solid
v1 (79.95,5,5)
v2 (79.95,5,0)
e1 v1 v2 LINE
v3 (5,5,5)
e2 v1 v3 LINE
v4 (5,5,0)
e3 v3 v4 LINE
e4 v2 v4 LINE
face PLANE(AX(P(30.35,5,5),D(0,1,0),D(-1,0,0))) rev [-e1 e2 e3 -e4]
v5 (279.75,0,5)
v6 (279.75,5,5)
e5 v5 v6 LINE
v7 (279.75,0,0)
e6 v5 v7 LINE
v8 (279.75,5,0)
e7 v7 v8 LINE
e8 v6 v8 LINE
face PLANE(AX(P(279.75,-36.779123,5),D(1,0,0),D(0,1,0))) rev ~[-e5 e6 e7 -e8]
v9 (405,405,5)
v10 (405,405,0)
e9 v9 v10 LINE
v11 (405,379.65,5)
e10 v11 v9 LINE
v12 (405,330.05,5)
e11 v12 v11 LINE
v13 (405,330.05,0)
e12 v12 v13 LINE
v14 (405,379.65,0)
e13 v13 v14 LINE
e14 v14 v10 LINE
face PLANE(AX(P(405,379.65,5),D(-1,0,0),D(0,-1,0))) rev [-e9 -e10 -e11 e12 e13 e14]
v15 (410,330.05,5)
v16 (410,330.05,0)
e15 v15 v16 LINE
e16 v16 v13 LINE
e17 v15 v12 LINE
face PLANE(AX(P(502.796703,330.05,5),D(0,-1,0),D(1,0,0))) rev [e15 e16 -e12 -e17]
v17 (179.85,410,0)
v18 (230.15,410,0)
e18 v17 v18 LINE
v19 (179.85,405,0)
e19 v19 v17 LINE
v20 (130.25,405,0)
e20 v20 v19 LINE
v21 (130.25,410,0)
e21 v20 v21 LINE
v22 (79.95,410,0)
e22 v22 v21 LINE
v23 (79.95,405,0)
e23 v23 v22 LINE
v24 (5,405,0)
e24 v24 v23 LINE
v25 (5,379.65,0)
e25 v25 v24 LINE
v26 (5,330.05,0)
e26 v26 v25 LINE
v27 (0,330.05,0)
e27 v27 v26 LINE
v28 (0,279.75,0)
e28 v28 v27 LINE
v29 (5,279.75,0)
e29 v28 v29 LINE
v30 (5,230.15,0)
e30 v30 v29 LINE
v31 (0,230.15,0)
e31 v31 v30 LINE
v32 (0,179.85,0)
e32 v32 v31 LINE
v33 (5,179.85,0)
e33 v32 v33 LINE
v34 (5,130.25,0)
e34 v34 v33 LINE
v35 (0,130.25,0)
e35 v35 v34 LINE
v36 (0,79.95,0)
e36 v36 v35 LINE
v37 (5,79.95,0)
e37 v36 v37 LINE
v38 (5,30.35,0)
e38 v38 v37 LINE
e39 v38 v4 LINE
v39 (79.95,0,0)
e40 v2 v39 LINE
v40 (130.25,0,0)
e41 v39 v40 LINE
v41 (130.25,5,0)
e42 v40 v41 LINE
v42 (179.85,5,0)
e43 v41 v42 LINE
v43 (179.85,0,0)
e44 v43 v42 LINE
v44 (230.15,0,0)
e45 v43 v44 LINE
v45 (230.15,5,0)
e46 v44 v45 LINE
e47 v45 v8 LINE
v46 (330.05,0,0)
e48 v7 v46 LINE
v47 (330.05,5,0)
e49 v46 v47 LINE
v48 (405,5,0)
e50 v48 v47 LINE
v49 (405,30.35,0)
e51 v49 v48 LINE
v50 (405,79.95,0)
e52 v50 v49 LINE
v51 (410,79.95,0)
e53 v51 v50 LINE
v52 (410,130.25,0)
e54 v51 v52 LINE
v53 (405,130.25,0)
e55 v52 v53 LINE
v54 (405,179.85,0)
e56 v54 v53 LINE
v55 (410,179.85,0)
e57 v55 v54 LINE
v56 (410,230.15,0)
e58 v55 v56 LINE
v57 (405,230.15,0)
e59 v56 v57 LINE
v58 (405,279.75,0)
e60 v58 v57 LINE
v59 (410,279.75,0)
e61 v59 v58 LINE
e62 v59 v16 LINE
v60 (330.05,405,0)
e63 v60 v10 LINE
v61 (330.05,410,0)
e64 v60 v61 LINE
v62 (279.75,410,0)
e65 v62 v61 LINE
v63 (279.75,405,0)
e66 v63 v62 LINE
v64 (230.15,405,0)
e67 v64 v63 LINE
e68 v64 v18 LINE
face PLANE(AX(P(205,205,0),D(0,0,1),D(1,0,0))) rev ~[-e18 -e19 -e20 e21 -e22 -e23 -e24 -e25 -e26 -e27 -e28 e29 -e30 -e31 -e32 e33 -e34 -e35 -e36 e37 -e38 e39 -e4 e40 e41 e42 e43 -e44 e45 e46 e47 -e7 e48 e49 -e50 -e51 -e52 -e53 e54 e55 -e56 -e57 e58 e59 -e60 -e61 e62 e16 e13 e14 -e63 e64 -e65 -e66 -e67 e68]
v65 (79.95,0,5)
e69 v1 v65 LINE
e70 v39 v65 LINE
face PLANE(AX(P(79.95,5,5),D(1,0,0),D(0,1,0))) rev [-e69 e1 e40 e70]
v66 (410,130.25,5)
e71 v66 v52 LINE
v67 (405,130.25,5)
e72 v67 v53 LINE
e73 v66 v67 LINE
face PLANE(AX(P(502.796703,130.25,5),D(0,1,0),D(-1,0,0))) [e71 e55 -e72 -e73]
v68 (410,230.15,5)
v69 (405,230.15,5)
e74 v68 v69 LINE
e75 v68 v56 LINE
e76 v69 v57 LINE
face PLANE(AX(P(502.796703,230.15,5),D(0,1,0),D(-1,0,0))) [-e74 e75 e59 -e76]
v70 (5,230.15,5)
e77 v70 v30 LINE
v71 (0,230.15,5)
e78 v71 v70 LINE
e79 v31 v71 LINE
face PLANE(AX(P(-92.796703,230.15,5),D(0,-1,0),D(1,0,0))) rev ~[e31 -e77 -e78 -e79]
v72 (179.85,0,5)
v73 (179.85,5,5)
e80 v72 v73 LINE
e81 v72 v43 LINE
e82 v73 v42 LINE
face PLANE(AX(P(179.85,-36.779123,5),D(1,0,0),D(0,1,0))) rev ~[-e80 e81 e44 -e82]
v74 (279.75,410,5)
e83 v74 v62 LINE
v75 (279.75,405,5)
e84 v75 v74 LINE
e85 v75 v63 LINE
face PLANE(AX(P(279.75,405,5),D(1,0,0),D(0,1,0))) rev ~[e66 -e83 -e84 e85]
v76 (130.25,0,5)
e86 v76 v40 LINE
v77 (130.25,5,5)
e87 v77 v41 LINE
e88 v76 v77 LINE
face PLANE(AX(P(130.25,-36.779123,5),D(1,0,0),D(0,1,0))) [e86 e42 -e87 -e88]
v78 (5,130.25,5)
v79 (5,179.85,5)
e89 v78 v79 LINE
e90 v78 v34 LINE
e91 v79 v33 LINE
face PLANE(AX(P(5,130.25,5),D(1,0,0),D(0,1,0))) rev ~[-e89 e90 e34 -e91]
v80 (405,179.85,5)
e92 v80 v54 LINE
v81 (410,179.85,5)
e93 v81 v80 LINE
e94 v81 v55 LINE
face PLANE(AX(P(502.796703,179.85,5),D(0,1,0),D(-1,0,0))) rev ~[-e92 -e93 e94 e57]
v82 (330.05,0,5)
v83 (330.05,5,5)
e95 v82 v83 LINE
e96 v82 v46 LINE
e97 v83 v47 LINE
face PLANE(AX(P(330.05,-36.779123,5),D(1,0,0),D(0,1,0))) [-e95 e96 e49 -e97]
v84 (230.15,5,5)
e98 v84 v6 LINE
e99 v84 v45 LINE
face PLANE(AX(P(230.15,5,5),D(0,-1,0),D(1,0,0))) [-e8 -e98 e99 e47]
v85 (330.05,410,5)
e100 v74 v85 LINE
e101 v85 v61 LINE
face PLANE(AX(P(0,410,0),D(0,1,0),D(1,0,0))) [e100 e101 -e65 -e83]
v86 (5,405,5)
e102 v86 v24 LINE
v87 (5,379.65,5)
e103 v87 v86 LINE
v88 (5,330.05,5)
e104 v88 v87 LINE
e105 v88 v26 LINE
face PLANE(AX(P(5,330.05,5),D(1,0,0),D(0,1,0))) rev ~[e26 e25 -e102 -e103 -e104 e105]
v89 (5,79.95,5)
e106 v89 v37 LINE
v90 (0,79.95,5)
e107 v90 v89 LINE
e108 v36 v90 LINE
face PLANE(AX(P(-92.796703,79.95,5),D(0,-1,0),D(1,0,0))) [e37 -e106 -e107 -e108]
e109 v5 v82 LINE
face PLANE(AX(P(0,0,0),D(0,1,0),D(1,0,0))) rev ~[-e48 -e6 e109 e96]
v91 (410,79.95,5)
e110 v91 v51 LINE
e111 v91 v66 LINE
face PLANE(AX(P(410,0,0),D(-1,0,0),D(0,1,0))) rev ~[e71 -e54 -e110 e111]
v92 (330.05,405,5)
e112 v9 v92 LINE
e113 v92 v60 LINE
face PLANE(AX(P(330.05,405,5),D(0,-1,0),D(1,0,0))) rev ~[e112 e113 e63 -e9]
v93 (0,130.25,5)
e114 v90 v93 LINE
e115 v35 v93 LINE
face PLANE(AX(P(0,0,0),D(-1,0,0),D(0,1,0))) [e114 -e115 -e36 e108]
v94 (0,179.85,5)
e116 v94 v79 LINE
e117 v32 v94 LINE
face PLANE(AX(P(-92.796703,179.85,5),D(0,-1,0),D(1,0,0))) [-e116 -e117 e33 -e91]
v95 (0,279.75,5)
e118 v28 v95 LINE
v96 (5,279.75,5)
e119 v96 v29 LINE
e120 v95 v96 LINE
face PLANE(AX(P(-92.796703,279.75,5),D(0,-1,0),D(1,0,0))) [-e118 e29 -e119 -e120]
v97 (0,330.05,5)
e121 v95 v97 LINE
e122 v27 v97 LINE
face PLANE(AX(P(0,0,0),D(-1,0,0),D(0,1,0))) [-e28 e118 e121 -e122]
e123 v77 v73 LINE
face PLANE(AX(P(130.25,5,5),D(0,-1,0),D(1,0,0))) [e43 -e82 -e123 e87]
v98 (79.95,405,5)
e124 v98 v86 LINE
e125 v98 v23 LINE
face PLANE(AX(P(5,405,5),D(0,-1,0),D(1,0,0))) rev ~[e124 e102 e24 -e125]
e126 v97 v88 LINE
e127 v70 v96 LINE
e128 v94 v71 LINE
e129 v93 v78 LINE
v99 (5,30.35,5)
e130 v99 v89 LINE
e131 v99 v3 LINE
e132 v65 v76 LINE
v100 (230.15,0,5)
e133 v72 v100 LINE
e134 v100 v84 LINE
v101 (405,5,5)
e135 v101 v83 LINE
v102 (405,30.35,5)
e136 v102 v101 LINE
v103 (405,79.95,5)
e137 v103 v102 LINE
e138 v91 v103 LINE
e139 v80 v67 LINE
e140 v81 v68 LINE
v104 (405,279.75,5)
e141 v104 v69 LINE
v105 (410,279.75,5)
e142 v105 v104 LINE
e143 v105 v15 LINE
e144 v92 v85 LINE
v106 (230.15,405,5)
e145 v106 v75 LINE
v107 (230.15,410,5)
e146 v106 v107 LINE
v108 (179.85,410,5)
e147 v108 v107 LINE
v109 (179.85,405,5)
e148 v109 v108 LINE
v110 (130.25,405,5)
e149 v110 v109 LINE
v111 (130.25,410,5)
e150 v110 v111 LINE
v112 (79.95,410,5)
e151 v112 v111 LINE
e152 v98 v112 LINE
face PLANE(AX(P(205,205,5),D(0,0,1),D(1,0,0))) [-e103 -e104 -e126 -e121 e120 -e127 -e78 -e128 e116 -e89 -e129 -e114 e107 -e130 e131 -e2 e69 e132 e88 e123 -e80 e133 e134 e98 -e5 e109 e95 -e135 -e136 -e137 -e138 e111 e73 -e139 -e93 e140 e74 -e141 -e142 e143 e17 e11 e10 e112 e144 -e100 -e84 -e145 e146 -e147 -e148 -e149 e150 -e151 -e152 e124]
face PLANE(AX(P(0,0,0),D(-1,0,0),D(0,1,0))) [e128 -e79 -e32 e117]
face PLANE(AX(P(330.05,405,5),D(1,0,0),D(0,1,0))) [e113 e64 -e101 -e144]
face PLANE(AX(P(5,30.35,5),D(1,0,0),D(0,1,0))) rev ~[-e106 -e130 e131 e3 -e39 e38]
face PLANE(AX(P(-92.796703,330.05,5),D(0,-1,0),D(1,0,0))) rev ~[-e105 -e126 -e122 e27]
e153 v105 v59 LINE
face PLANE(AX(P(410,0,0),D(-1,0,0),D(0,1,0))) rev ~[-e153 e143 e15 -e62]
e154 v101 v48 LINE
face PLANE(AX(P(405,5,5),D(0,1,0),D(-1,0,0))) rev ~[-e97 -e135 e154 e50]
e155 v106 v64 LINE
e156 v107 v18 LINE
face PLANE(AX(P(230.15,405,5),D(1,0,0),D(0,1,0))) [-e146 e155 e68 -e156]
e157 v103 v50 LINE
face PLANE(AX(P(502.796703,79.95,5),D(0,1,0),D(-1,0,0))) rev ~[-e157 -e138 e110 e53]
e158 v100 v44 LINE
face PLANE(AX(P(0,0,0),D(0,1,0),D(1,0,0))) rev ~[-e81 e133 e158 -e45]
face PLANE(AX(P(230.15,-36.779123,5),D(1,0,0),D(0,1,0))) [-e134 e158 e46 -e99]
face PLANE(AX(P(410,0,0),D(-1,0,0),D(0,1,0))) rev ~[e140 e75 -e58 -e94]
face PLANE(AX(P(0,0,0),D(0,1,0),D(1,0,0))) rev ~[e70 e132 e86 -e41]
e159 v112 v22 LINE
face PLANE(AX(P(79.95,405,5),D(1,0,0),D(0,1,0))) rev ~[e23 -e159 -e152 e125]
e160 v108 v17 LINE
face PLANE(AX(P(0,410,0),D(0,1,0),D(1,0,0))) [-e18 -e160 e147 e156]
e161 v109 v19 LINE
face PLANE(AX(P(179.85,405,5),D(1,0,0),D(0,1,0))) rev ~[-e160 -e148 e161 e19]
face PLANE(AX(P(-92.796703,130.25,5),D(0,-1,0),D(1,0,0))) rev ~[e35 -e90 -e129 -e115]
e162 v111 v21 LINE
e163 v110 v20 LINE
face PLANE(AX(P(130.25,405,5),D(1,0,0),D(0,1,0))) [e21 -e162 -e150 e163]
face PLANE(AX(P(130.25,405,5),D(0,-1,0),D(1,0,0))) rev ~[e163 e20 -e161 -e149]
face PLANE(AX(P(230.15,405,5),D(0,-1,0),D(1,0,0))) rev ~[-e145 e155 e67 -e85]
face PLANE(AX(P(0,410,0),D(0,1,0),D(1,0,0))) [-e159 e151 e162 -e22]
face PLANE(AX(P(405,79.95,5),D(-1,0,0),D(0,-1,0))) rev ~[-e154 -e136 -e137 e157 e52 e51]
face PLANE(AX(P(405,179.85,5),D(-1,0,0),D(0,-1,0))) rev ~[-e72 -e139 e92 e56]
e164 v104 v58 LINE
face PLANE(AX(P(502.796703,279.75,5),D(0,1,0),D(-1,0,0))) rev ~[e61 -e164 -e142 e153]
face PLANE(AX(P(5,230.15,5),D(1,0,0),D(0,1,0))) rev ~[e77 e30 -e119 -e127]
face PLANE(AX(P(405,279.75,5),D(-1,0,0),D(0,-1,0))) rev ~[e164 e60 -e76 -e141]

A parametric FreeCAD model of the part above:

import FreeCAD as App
import Part
import Sketcher
from FreeCAD import Vector


def add_polygon(sketch, points):
    """Adds a closed chain of lines whose ends are joined by coincident constraints."""
    first, n = sketch.GeometryCount, len(points)
    for a, b in zip(points, points[1:] + points[:1]):
        sketch.addGeometry(Part.LineSegment(App.Vector(*a, 0), App.Vector(*b, 0)), False)
    for i in range(n):
        sketch.addConstraint(Sketcher.Constraint("Coincident", first + i, 2, first + (i + 1) % n, 1))

doc = App.newDocument("Part")
params = doc.addObject("Spreadsheet::Sheet", "Params")
for row, (alias, value) in enumerate([
    ("sketch1_width", "410 mm"),
    ("pad1_length", "5 mm"),
    ("sketch2_height", "49.6 mm"),
    ("pocket1_length", "5 mm"),
    ("linearpattern_pitch", "99.9 mm"),
    ("sketch3_height", "49.6 mm"),
    ("pocket2_length", "5 mm"),
    ("sketch4_height", "49.6 mm"),
    ("pocket3_length", "5 mm"),
    ("sketch5_height", "49.6 mm"),
    ("pocket4_length", "5 mm"),
    ("sketch6_width", "49.6 mm"),
    ("pocket5_length", "5 mm"),
    ("linearpattern2_pitch", "99.9 mm"),
    ("sketch7_width", "49.6 mm"),
    ("pocket6_length", "5 mm"),
    ("sketch8_width", "49.6 mm"),
    ("pocket7_length", "5 mm"),
    ("sketch9_width", "49.6 mm"),
    ("pocket8_length", "5 mm"),
    ("sketch10_width", "25.35 mm"),
    ("pocket9_length", "5 mm"),
    ("sketch11_width", "25.35 mm"),
    ("pocket10_length", "5 mm"),
], start=1):
    params.set(f"A{row}", alias)
    params.set(f"B{row}", "=" + value)
    params.setAlias(f"B{row}", alias)

body = doc.addObject("PartDesign::Body", "Body")

sketch1 = body.newObject("Sketcher::SketchObject", "Sketch")
sketch1.AttachmentSupport = (doc.getObject("XY_Plane"), [""])
sketch1.MapMode = "FlatFace"
add_polygon(sketch1, [(0, 410), (0, 0), (410, 0), (410, 410)])
sketch1.addConstraint([
    Sketcher.Constraint("Vertical", 0),
    Sketcher.Constraint("Horizontal", 1),
    Sketcher.Constraint("Vertical", 2),
    Sketcher.Constraint("Horizontal", 3),
    Sketcher.Constraint("Coincident", 0, 2, -1, 1),
    Sketcher.Constraint("Equal", 3, 0),
    Sketcher.Constraint("DistanceX", 1, 1, 1, 2, 410.0),
])
sketch1.setExpression("Constraints[10]", "Params.sketch1_width")
pad1 = body.newObject("PartDesign::Pad", "Pad")
pad1.Profile = sketch1
pad1.setExpression("Length", "Params.pad1_length")

sketch2 = body.newObject("Sketcher::SketchObject", "Sketch001")
sketch2.AttachmentSupport = (doc.getObject("XY_Plane"), [""])
sketch2.MapMode = "FlatFace"
sketch2.AttachmentOffset = App.Placement(Vector(0, 0, 5), App.Rotation())
add_polygon(sketch2, [(-93, 380), (-93, 330), (5, 330), (5, 380)])
sketch2.addConstraint([
    Sketcher.Constraint("Vertical", 0),
    Sketcher.Constraint("Horizontal", 1),
    Sketcher.Constraint("Vertical", 2),
    Sketcher.Constraint("Horizontal", 3),
    Sketcher.Constraint("DistanceY", 0, 2, 0, 1, 49.6),
    Sketcher.Constraint("DistanceX", -1, 1, 1, 2, 5.0),
    Sketcher.Constraint("DistanceY", -1, 1, 0, 2, 330.05),
    Sketcher.Constraint("DistanceX", 1, 1, 1, 2, 97.796703),
])
sketch2.setExpression("Constraints[8]", "Params.sketch2_height")
pocket1 = body.newObject("PartDesign::Pocket", "Pocket")
pocket1.Profile = sketch2
pocket1.setExpression("Length", "Params.pocket1_length")
doc.recompute()

linearpattern = body.newObject("PartDesign::LinearPattern", "LinearPattern")
linearpattern.Originals = [pocket1]
linearpattern.Direction = (doc.getObject("Y_Axis"), [""])
linearpattern.Mode = "offset"
linearpattern.setExpression("Offset", "Params.linearpattern_pitch")
linearpattern.Occurrences = 4
linearpattern.Reversed = True
body.Tip = linearpattern
doc.recompute()

datumplane = body.newObject("PartDesign::Plane", "DatumPlane")
datumplane.AttachmentSupport = (doc.getObject("YZ_Plane"), [""])
datumplane.MapMode = "FlatFace"
datumplane.AttachmentOffset = App.Placement(Vector(0, 0, 205), App.Rotation())
mirrored = body.newObject("PartDesign::Mirrored", "Mirrored")
mirrored.Originals = [pocket1]
mirrored.MirrorPlane = (datumplane, [""])
body.Tip = mirrored

sketch3 = body.newObject("Sketcher::SketchObject", "Sketch002")
sketch3.AttachmentSupport = (doc.getObject("XY_Plane"), [""])
sketch3.MapMode = "FlatFace"
sketch3.AttachmentOffset = App.Placement(Vector(0, 0, 5), App.Rotation())
add_polygon(sketch3, [(503, 230), (503, 280), (405, 280), (405, 230)])
sketch3.addConstraint([
    Sketcher.Constraint("Vertical", 0),
    Sketcher.Constraint("Horizontal", 1),
    Sketcher.Constraint("Vertical", 2),
    Sketcher.Constraint("Horizontal", 3),
    Sketcher.Constraint("DistanceY", 0, 1, 0, 2, 49.6),
    Sketcher.Constraint("DistanceX", -1, 1, 1, 2, 405.0),
    Sketcher.Constraint("DistanceY", -1, 1, 0, 2, 279.75),
    Sketcher.Constraint("DistanceX", 1, 2, 1, 1, 97.796703),
])
sketch3.setExpression("Constraints[8]", "Params.sketch3_height")
pocket2 = body.newObject("PartDesign::Pocket", "Pocket001")
pocket2.Profile = sketch3
pocket2.setExpression("Length", "Params.pocket2_length")

sketch4 = body.newObject("Sketcher::SketchObject", "Sketch003")
sketch4.AttachmentSupport = (doc.getObject("XY_Plane"), [""])
sketch4.MapMode = "FlatFace"
sketch4.AttachmentOffset = App.Placement(Vector(0, 0, 5), App.Rotation())
add_polygon(sketch4, [(503, 130), (503, 180), (405, 180), (405, 130)])
sketch4.addConstraint([
    Sketcher.Constraint("Vertical", 0),
    Sketcher.Constraint("Horizontal", 1),
    Sketcher.Constraint("Vertical", 2),
    Sketcher.Constraint("Horizontal", 3),
    Sketcher.Constraint("DistanceY", 0, 1, 0, 2, 49.6),
    Sketcher.Constraint("DistanceX", -1, 1, 1, 2, 405.0),
    Sketcher.Constraint("DistanceY", -1, 1, 0, 2, 179.85),
    Sketcher.Constraint("DistanceX", 1, 2, 1, 1, 97.796703),
])
sketch4.setExpression("Constraints[8]", "Params.sketch4_height")
pocket3 = body.newObject("PartDesign::Pocket", "Pocket002")
pocket3.Profile = sketch4
pocket3.setExpression("Length", "Params.pocket3_length")

sketch5 = body.newObject("Sketcher::SketchObject", "Sketch004")
sketch5.AttachmentSupport = (doc.getObject("XY_Plane"), [""])
sketch5.MapMode = "FlatFace"
sketch5.AttachmentOffset = App.Placement(Vector(0, 0, 5), App.Rotation())
add_polygon(sketch5, [(503, 30), (503, 80), (405, 80), (405, 30)])
sketch5.addConstraint([
    Sketcher.Constraint("Vertical", 0),
    Sketcher.Constraint("Horizontal", 1),
    Sketcher.Constraint("Vertical", 2),
    Sketcher.Constraint("Horizontal", 3),
    Sketcher.Constraint("DistanceY", 0, 1, 0, 2, 49.6),
    Sketcher.Constraint("DistanceX", -1, 1, 1, 2, 405.0),
    Sketcher.Constraint("DistanceY", -1, 1, 0, 2, 79.95),
    Sketcher.Constraint("DistanceX", 1, 2, 1, 1, 97.796703),
])
sketch5.setExpression("Constraints[8]", "Params.sketch5_height")
pocket4 = body.newObject("PartDesign::Pocket", "Pocket003")
pocket4.Profile = sketch5
pocket4.setExpression("Length", "Params.pocket4_length")

sketch6 = body.newObject("Sketcher::SketchObject", "Sketch005")
sketch6.AttachmentSupport = (doc.getObject("XY_Plane"), [""])
sketch6.MapMode = "FlatFace"
sketch6.AttachmentOffset = App.Placement(Vector(0, 0, 5), App.Rotation())
add_polygon(sketch6, [(30, 447), (30, 405), (80, 405), (80, 447)])
sketch6.addConstraint([
    Sketcher.Constraint("Vertical", 0),
    Sketcher.Constraint("Horizontal", 1),
    Sketcher.Constraint("Vertical", 2),
    Sketcher.Constraint("Horizontal", 3),
    Sketcher.Constraint("DistanceX", 1, 1, 1, 2, 49.6),
    Sketcher.Constraint("DistanceY", -1, 1, 0, 2, 405.0),
    Sketcher.Constraint("DistanceX", -1, 1, 0, 2, 30.35),
    Sketcher.Constraint("DistanceY", 0, 2, 0, 1, 41.779123),
])
sketch6.setExpression("Constraints[8]", "Params.sketch6_width")
pocket5 = body.newObject("PartDesign::Pocket", "Pocket004")
pocket5.Profile = sketch6
pocket5.setExpression("Length", "Params.pocket5_length")
doc.recompute()

linearpattern2 = body.newObject("PartDesign::LinearPattern", "LinearPattern001")
linearpattern2.Originals = [pocket5]
linearpattern2.Direction = (doc.getObject("X_Axis"), [""])
linearpattern2.Mode = "offset"
linearpattern2.setExpression("Offset", "Params.linearpattern2_pitch")
linearpattern2.Occurrences = 4
body.Tip = linearpattern2
doc.recompute()

datumplane2 = body.newObject("PartDesign::Plane", "DatumPlane001")
datumplane2.AttachmentSupport = (doc.getObject("XZ_Plane"), [""])
datumplane2.MapMode = "FlatFace"
datumplane2.AttachmentOffset = App.Placement(Vector(0, 0, -205), App.Rotation())
mirrored2 = body.newObject("PartDesign::Mirrored", "Mirrored001")
mirrored2.Originals = [pocket5]
mirrored2.MirrorPlane = (datumplane2, [""])
body.Tip = mirrored2

sketch7 = body.newObject("Sketcher::SketchObject", "Sketch006")
sketch7.AttachmentSupport = (doc.getObject("XY_Plane"), [""])
sketch7.MapMode = "FlatFace"
sketch7.AttachmentOffset = App.Placement(Vector(0, 0, 5), App.Rotation())
add_polygon(sketch7, [(130, 5), (130, -37), (180, -37), (180, 5)])
sketch7.addConstraint([
    Sketcher.Constraint("Vertical", 0),
    Sketcher.Constraint("Horizontal", 1),
    Sketcher.Constraint("Vertical", 2),
    Sketcher.Constraint("Horizontal", 3),
    Sketcher.Constraint("DistanceX", 1, 1, 1, 2, 49.6),
    Sketcher.Constraint("DistanceY", -1, 1, 2, 2, 5.0),
    Sketcher.Constraint("DistanceX", -1, 1, 0, 2, 130.25),
    Sketcher.Constraint("DistanceY", 0, 2, 0, 1, 41.779123),
])
sketch7.setExpression("Constraints[8]", "Params.sketch7_width")
pocket6 = body.newObject("PartDesign::Pocket", "Pocket005")
pocket6.Profile = sketch7
pocket6.setExpression("Length", "Params.pocket6_length")

sketch8 = body.newObject("Sketcher::SketchObject", "Sketch007")
sketch8.AttachmentSupport = (doc.getObject("XY_Plane"), [""])
sketch8.MapMode = "FlatFace"
sketch8.AttachmentOffset = App.Placement(Vector(0, 0, 5), App.Rotation())
add_polygon(sketch8, [(230, 5), (230, -37), (280, -37), (280, 5)])
sketch8.addConstraint([
    Sketcher.Constraint("Vertical", 0),
    Sketcher.Constraint("Horizontal", 1),
    Sketcher.Constraint("Vertical", 2),
    Sketcher.Constraint("Horizontal", 3),
    Sketcher.Constraint("DistanceX", 1, 1, 1, 2, 49.6),
    Sketcher.Constraint("DistanceY", -1, 1, 2, 2, 5.0),
    Sketcher.Constraint("DistanceX", -1, 1, 0, 2, 230.15),
    Sketcher.Constraint("DistanceY", 0, 2, 0, 1, 41.779123),
])
sketch8.setExpression("Constraints[8]", "Params.sketch8_width")
pocket7 = body.newObject("PartDesign::Pocket", "Pocket006")
pocket7.Profile = sketch8
pocket7.setExpression("Length", "Params.pocket7_length")

sketch9 = body.newObject("Sketcher::SketchObject", "Sketch008")
sketch9.AttachmentSupport = (doc.getObject("XY_Plane"), [""])
sketch9.MapMode = "FlatFace"
sketch9.AttachmentOffset = App.Placement(Vector(0, 0, 5), App.Rotation())
add_polygon(sketch9, [(330, 5), (330, -37), (380, -37), (380, 5)])
sketch9.addConstraint([
    Sketcher.Constraint("Vertical", 0),
    Sketcher.Constraint("Horizontal", 1),
    Sketcher.Constraint("Vertical", 2),
    Sketcher.Constraint("Horizontal", 3),
    Sketcher.Constraint("DistanceX", 1, 1, 1, 2, 49.6),
    Sketcher.Constraint("DistanceY", -1, 1, 2, 2, 5.0),
    Sketcher.Constraint("DistanceX", -1, 1, 0, 2, 330.05),
    Sketcher.Constraint("DistanceY", 0, 2, 0, 1, 41.779123),
])
sketch9.setExpression("Constraints[8]", "Params.sketch9_width")
pocket8 = body.newObject("PartDesign::Pocket", "Pocket007")
pocket8.Profile = sketch9
pocket8.setExpression("Length", "Params.pocket8_length")

sketch10 = body.newObject("Sketcher::SketchObject", "Sketch009")
sketch10.AttachmentSupport = (doc.getObject("XY_Plane"), [""])
sketch10.MapMode = "FlatFace"
sketch10.AttachmentOffset = App.Placement(Vector(0, 0, 5), App.Rotation())
add_polygon(sketch10, [(5, 380), (5, 405), (30, 405), (30, 432), (-48, 432), (-48, 380)])
sketch10.addConstraint([
    Sketcher.Constraint("Vertical", 0),
    Sketcher.Constraint("Horizontal", 1),
    Sketcher.Constraint("Vertical", 2),
    Sketcher.Constraint("Horizontal", 3),
    Sketcher.Constraint("Vertical", 4),
    Sketcher.Constraint("Horizontal", 5),
    Sketcher.Constraint("Equal", 1, 0),
    Sketcher.Constraint("DistanceX", -1, 1, 0, 2, 5.0),
    Sketcher.Constraint("DistanceY", -1, 1, 0, 2, 405.0),
    Sketcher.Constraint("DistanceX", 1, 1, 1, 2, 25.35),
    Sketcher.Constraint("DistanceY", 2, 1, 2, 2, 26.549801),
    Sketcher.Constraint("DistanceX", 3, 2, 3, 1, 78.212925),
])
sketch10.setExpression("Constraints[15]", "Params.sketch10_width")
pocket9 = body.newObject("PartDesign::Pocket", "Pocket008")
pocket9.Profile = sketch10
pocket9.setExpression("Length", "Params.pocket9_length")
doc.recompute()

datumplane3 = body.newObject("PartDesign::Plane", "DatumPlane002")
datumplane3.AttachmentSupport = (doc.getObject("YZ_Plane"), [""])
datumplane3.MapMode = "FlatFace"
datumplane3.AttachmentOffset = App.Placement(Vector(0, 0, 205), App.Rotation())
mirrored3 = body.newObject("PartDesign::Mirrored", "Mirrored002")
mirrored3.Originals = [pocket9]
mirrored3.MirrorPlane = (datumplane3, [""])
body.Tip = mirrored3
doc.recompute()

datumplane4 = body.newObject("PartDesign::Plane", "DatumPlane003")
datumplane4.AttachmentSupport = (doc.getObject("XZ_Plane"), [""])
datumplane4.MapMode = "FlatFace"
datumplane4.AttachmentOffset = App.Placement(Vector(0, 0, -205), App.Rotation())
mirrored4 = body.newObject("PartDesign::Mirrored", "Mirrored003")
mirrored4.Originals = [pocket9]
mirrored4.MirrorPlane = (datumplane4, [""])
body.Tip = mirrored4

sketch11 = body.newObject("Sketcher::SketchObject", "Sketch010")
sketch11.AttachmentSupport = (doc.getObject("XY_Plane"), [""])
sketch11.MapMode = "FlatFace"
sketch11.AttachmentOffset = App.Placement(Vector(0, 0, 5), App.Rotation())
add_polygon(sketch11, [(405, 30), (405, 5), (380, 5), (380, -22), (458, -22), (458, 30)])
sketch11.addConstraint([
    Sketcher.Constraint("Vertical", 0),
    Sketcher.Constraint("Horizontal", 1),
    Sketcher.Constraint("Vertical", 2),
    Sketcher.Constraint("Horizontal", 3),
    Sketcher.Constraint("Vertical", 4),
    Sketcher.Constraint("Horizontal", 5),
    Sketcher.Constraint("Equal", 1, 0),
    Sketcher.Constraint("DistanceX", -1, 1, 0, 2, 405.0),
    Sketcher.Constraint("DistanceY", -1, 1, 0, 2, 5.0),
    Sketcher.Constraint("DistanceX", 1, 2, 1, 1, 25.35),
    Sketcher.Constraint("DistanceY", 2, 2, 2, 1, 26.549801),
    Sketcher.Constraint("DistanceX", 3, 1, 3, 2, 78.212925),
])
sketch11.setExpression("Constraints[15]", "Params.sketch11_width")
pocket10 = body.newObject("PartDesign::Pocket", "Pocket009")
pocket10.Profile = sketch11
pocket10.setExpression("Length", "Params.pocket10_length")

doc.recompute()
